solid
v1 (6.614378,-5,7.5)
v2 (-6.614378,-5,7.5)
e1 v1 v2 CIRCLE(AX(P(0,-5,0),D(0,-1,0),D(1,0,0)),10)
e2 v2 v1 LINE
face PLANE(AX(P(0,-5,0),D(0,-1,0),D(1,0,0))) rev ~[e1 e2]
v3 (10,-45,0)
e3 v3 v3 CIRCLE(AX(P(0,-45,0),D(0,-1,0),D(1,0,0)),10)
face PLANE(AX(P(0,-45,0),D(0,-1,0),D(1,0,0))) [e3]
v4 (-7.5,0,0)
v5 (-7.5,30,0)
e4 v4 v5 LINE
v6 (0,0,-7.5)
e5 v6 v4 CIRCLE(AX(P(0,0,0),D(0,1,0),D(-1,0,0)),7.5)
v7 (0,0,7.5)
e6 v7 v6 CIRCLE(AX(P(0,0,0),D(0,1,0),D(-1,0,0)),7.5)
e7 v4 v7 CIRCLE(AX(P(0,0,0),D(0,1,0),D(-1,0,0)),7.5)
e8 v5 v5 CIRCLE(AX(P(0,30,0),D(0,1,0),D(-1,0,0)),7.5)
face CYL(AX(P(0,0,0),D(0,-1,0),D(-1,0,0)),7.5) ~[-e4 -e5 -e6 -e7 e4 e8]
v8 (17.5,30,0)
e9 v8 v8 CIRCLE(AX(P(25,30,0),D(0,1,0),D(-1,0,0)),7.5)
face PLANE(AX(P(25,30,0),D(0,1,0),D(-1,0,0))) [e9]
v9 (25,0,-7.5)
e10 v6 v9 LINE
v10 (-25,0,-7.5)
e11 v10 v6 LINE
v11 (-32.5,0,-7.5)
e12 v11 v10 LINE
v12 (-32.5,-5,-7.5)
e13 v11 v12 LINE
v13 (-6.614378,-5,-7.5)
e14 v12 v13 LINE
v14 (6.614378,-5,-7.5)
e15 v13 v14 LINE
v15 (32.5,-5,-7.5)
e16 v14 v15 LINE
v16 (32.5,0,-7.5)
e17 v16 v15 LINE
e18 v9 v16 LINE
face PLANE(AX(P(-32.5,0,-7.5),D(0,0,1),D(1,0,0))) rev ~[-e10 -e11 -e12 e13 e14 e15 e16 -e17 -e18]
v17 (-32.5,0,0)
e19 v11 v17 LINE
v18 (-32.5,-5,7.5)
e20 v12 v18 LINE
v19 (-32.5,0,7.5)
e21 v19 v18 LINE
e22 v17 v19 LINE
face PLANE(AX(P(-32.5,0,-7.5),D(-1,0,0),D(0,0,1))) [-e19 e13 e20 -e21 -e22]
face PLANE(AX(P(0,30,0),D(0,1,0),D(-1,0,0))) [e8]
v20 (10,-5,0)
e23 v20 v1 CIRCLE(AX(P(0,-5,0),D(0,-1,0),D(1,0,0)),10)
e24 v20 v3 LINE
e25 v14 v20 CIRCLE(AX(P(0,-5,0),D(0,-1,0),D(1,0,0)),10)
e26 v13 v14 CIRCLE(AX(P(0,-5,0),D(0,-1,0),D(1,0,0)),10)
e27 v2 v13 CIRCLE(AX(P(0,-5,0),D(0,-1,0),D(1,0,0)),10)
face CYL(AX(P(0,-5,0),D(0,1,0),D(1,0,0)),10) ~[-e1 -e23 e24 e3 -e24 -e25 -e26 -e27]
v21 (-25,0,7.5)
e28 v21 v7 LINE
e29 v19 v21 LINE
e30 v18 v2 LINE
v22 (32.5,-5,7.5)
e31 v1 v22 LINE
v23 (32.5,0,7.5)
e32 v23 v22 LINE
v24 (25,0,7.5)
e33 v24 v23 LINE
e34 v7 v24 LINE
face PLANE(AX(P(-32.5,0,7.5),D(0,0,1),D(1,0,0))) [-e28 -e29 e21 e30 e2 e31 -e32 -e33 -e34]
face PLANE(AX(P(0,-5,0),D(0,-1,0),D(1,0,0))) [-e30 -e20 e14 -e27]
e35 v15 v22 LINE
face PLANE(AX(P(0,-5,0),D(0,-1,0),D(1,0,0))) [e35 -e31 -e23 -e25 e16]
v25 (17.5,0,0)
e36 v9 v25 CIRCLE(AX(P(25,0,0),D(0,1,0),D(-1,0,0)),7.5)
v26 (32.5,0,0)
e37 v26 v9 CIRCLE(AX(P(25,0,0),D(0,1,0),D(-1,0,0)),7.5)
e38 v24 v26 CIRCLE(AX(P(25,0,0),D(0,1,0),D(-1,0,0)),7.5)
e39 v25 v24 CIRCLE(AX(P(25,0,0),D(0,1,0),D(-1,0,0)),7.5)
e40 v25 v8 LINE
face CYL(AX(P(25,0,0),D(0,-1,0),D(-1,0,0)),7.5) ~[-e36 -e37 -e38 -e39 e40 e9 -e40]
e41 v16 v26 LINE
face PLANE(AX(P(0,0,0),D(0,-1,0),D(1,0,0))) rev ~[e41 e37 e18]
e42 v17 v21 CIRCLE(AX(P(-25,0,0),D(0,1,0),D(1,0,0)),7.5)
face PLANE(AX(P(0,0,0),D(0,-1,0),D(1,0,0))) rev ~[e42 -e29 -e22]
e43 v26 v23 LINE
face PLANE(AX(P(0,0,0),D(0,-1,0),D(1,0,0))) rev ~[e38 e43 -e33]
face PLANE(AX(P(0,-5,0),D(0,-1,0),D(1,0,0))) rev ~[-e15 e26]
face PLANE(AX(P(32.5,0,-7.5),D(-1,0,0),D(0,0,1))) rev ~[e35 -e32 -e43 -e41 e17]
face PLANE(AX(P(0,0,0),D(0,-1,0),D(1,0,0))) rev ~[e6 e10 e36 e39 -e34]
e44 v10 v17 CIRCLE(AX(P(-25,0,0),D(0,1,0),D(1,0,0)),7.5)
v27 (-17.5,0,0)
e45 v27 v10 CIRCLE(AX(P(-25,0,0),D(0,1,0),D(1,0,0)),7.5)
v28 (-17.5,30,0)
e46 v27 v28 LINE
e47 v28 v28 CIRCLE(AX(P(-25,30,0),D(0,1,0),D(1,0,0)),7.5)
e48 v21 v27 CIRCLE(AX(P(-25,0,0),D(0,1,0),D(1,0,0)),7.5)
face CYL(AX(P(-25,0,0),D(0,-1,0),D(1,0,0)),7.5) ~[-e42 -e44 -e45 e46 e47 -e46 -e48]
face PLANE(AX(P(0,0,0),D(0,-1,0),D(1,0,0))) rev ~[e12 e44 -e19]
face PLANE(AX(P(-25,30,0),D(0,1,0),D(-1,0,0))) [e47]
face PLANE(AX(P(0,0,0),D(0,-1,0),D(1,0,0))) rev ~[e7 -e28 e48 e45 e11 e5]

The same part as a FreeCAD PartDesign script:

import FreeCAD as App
import Part
import Sketcher

V = App.Vector


def add_polygon(sketch, points):
    """Adds a closed chain of lines whose ends are joined by coincident constraints."""
    first, n = sketch.GeometryCount, len(points)
    for a, b in zip(points, points[1:] + points[:1]):
        sketch.addGeometry(Part.LineSegment(App.Vector(*a, 0), App.Vector(*b, 0)), False)
    for i in range(n):
        sketch.addConstraint(Sketcher.Constraint("Coincident", first + i, 2, first + (i + 1) % n, 1))

doc = App.newDocument("Part")
params = doc.addObject("Spreadsheet::Sheet", "Params")
for row, (alias, value) in enumerate([
    ("sketch1_width", "65 mm"),
    ("sketch1_height", "15 mm"),
    ("pad1_length", "5 mm"),
    ("sketch2_diameter", "15 mm"),
    ("pad2_length", "30 mm"),
    ("sketch3_diameter", "20 mm"),
    ("pad3_length", "40 mm"),
], start=1):
    params.set(f"A{row}", alias)
    params.set(f"B{row}", "=" + value)
    params.setAlias(f"B{row}", alias)

body = doc.addObject("PartDesign::Body", "Body")

sketch1 = body.newObject("Sketcher::SketchObject", "Sketch")
sketch1.AttachmentSupport = (doc.getObject("XZ_Plane"), [""])
sketch1.MapMode = "FlatFace"
add_polygon(sketch1, [(-32, 8), (-32, -8), (32, -8), (32, 8)])
sketch1.addConstraint(Sketcher.Constraint("Vertical", 0))
sketch1.addConstraint(Sketcher.Constraint("Horizontal", 1))
sketch1.addConstraint(Sketcher.Constraint("Vertical", 2))
sketch1.addConstraint(Sketcher.Constraint("Horizontal", 3))
sketch1.addConstraint(Sketcher.Constraint("Symmetric", 0, 2, 2, 2, -1, 1))
sketch1.addConstraint(Sketcher.Constraint("DistanceX", 1, 1, 1, 2, 65.0))
sketch1.addConstraint(Sketcher.Constraint("DistanceY", 0, 2, 0, 1, 15.0))
sketch1.setExpression("Constraints[9]", "Params.sketch1_width")
sketch1.setExpression("Constraints[10]", "Params.sketch1_height")
pad1 = body.newObject("PartDesign::Pad", "Pad")
pad1.Profile = sketch1
pad1.setExpression("Length", "Params.pad1_length")

sketch2 = body.newObject("Sketcher::SketchObject", "Sketch001")
sketch2.AttachmentSupport = (doc.getObject("XZ_Plane"), [""])
sketch2.MapMode = "FlatFace"
sketch2.addGeometry(Part.Circle(V(0, 0, 0), V(0, 0, 1), 8), False)
sketch2.addGeometry(Part.Circle(V(25, 0, 0), V(0, 0, 1), 8), False)
sketch2.addGeometry(Part.Circle(V(-25, 0, 0), V(0, 0, 1), 8), False)
sketch2.addConstraint(Sketcher.Constraint("Coincident", 0, 3, -1, 1))
sketch2.addConstraint(Sketcher.Constraint("Equal", 0, 1))
sketch2.addConstraint(Sketcher.Constraint("Equal", 1, 2))
sketch2.addConstraint(Sketcher.Constraint("Symmetric", 1, 3, 2, 3, -1, 1))
sketch2.addConstraint(Sketcher.Constraint("PointOnObject", 1, 3, -1))
sketch2.addConstraint(Sketcher.Constraint("Diameter", 0, 15.0))
sketch2.addConstraint(Sketcher.Constraint("DistanceX", -1, 1, 1, 3, 25.0))
sketch2.setExpression("Constraints[5]", "Params.sketch2_diameter")
pad2 = body.newObject("PartDesign::Pad", "Pad001")
pad2.Profile = sketch2
pad2.setExpression("Length", "Params.pad2_length")
pad2.Reversed = True

sketch3 = body.newObject("Sketcher::SketchObject", "Sketch002")
sketch3.AttachmentSupport = (doc.getObject("XZ_Plane"), [""])
sketch3.MapMode = "FlatFace"
sketch3.AttachmentOffset = App.Placement(V(0, 0, 5), App.Rotation())
sketch3.addGeometry(Part.Circle(V(0, 0, 0), V(0, 0, 1), 10), False)
sketch3.addConstraint(Sketcher.Constraint("Coincident", 0, 3, -1, 1))
sketch3.addConstraint(Sketcher.Constraint("Diameter", 0, 20.0))
sketch3.setExpression("Constraints[1]", "Params.sketch3_diameter")
pad3 = body.newObject("PartDesign::Pad", "Pad002")
pad3.Profile = sketch3
pad3.setExpression("Length", "Params.pad3_length")

doc.recompute()
